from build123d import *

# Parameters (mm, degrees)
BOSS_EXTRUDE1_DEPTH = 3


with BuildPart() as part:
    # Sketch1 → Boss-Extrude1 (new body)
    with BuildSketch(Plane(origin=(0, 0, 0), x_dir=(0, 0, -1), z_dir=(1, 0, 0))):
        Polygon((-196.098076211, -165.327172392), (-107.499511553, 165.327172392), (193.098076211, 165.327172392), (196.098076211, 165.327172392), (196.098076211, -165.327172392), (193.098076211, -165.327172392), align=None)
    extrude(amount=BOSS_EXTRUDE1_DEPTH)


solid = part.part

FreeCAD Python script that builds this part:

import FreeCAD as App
import Part
import Sketcher
Q = App.Units.Quantity


def add_polygon(sketch, points):
    """Adds a closed chain of lines whose ends are joined by coincident constraints."""
    first, n = sketch.GeometryCount, len(points)
    for a, b in zip(points, points[1:] + points[:1]):
        sketch.addGeometry(Part.LineSegment(App.Vector(*a, 0), App.Vector(*b, 0)), False)
    for i in range(n):
        sketch.addConstraint(Sketcher.Constraint("Coincident", first + i, 2, first + (i + 1) % n, 1))

doc = App.newDocument("Part")
body = doc.addObject("PartDesign::Body", "Body")

# Sketch on YZ plane
sketch1 = doc.addObject("Sketcher::SketchObject", "Sketch")
body.addObject(sketch1)
sketch1.AttachmentSupport = (doc.YZ_Plane, [""])
sketch1.MapMode = "FlatFace"
add_polygon(sketch1, [(165, 107), (-165, 196), (-165, -196), (165, -196)])  # lines 0-3
sketch1.addConstraint([
    Sketcher.Constraint("Vertical", 1),
    Sketcher.Constraint("Horizontal", 2),
    Sketcher.Constraint("Vertical", 3),
    Sketcher.Constraint("Symmetric", 0, 2, 2, 2, -1, 1),
    Sketcher.Constraint("Angle", 0, Q("165 deg")),
    Sketcher.Constraint("DistanceX", 2, 1, 2, 2, Q("330.654345 mm")),
    Sketcher.Constraint("DistanceY", 1, 2, 1, 1, Q("392.196152 mm")),
])
pad1 = doc.addObject("PartDesign::Pad", "Pad")
body.addObject(pad1)
pad1.Profile = sketch1
pad1.Length = 3

doc.recompute()
